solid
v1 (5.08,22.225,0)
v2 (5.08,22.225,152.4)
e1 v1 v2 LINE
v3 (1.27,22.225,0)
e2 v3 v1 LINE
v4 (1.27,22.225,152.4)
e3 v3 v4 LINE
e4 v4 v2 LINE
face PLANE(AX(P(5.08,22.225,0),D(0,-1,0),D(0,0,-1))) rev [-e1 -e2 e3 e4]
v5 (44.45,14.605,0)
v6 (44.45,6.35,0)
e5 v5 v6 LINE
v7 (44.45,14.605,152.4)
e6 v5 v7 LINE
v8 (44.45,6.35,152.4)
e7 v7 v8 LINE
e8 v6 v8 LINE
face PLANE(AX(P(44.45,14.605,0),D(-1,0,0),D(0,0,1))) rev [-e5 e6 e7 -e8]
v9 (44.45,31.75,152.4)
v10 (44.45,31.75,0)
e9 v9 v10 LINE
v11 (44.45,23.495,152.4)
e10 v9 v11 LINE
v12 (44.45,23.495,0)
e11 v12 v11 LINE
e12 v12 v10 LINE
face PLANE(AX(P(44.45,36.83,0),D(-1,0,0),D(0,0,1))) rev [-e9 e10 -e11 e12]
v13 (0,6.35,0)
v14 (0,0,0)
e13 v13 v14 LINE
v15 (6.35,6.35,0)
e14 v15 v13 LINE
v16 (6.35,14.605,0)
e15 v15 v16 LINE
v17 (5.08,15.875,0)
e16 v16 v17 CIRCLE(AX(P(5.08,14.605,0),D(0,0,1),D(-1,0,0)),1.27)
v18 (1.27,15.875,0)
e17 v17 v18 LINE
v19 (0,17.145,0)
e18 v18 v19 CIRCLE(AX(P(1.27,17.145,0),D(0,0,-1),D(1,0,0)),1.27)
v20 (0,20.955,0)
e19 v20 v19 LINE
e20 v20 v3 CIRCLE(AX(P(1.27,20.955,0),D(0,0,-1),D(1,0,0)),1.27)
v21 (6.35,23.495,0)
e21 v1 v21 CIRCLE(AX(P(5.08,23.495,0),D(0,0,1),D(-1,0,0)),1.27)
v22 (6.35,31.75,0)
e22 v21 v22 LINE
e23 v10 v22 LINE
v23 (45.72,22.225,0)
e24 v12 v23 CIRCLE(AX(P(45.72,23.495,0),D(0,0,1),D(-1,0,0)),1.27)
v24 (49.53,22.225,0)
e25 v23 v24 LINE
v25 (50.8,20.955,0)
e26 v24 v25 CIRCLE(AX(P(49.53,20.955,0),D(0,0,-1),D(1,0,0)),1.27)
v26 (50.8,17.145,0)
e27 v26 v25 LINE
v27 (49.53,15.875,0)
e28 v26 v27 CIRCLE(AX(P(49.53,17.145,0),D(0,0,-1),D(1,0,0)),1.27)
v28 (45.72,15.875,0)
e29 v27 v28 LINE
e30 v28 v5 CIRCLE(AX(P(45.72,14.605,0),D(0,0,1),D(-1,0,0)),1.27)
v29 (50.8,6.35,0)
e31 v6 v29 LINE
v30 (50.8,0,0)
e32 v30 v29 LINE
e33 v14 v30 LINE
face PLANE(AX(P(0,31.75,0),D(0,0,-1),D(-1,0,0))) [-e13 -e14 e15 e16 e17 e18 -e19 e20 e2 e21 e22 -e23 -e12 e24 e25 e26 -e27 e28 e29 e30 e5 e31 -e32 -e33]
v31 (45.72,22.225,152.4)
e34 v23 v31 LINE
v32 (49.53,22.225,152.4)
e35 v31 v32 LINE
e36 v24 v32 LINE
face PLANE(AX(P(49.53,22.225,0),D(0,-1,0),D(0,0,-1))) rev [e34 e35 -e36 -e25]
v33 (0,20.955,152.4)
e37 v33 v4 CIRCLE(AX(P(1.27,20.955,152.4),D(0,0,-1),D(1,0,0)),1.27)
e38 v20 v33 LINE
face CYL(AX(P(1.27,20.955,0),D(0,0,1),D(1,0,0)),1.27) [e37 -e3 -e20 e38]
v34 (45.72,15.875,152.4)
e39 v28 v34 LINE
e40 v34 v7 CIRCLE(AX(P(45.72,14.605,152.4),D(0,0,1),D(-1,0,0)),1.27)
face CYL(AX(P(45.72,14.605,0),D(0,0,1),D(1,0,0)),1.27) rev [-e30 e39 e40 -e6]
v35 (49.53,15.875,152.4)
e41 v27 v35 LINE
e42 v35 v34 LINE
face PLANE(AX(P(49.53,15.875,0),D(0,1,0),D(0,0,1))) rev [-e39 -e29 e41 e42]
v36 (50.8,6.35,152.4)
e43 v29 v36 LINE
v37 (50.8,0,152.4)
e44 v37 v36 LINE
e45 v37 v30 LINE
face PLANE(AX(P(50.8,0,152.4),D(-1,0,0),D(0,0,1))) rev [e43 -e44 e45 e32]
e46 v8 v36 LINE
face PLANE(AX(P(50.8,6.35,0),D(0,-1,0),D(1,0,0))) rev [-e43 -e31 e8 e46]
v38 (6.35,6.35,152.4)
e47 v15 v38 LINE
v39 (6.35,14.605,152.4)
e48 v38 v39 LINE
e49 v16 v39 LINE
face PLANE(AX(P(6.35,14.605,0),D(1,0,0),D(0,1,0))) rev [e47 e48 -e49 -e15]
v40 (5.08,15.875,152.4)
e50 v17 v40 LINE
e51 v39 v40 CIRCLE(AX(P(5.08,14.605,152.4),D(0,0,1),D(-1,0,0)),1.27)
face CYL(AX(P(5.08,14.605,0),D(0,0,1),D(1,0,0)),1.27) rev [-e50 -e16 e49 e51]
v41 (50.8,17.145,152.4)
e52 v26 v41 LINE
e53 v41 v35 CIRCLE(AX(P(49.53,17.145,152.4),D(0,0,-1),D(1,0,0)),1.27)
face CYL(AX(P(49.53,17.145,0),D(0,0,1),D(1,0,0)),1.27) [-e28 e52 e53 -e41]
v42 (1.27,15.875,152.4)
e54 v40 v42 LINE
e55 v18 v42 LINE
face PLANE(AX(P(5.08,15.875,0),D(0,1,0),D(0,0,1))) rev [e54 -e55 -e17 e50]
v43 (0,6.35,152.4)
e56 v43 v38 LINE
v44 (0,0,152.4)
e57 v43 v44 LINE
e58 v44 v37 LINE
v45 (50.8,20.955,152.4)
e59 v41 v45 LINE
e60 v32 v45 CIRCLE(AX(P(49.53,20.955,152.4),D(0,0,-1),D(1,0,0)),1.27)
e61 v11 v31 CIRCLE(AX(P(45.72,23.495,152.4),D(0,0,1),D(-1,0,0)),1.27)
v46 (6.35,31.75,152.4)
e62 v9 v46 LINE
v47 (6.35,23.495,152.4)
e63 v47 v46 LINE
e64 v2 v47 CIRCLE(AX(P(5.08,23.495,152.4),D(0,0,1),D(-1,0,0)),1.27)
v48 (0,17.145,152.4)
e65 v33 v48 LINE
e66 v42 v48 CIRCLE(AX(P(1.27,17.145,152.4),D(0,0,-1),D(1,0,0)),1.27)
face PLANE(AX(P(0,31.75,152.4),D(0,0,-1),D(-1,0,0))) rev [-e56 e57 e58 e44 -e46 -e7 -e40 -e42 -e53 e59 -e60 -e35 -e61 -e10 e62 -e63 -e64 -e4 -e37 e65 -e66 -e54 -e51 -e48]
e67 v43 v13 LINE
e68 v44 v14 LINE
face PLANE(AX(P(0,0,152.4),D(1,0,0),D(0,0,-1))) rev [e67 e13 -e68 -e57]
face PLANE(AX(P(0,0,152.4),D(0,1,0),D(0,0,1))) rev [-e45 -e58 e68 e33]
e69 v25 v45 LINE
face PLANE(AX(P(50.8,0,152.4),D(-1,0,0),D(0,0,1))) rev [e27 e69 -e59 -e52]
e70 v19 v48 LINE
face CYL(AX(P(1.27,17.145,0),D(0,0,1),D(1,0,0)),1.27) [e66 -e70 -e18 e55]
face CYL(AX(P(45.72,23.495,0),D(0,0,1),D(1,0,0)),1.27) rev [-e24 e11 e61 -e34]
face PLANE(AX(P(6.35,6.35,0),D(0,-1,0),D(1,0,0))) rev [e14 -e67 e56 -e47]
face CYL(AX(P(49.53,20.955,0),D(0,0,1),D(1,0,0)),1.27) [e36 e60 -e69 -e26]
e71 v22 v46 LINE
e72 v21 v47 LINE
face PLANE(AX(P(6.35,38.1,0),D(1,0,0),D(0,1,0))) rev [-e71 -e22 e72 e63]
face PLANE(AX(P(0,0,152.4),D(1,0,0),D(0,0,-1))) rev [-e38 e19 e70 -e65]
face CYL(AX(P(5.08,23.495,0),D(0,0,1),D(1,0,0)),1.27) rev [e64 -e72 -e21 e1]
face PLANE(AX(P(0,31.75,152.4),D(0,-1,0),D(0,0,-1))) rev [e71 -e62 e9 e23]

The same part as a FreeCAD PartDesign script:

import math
import FreeCAD as App
import Part
import Sketcher

V = App.Vector
Q = App.Units.Quantity

doc = App.newDocument("Part")
body = doc.addObject("PartDesign::Body", "Body")

# Sketch on XY plane
sketch1 = body.newObject("Sketcher::SketchObject", "Sketch")
sketch1.AttachmentSupport = (doc.getObject("XY_Plane"), [""])
sketch1.MapMode = "FlatFace"
sketch1.addGeometry(Part.LineSegment(V(0, 31.75, 0), V(0, 0, 0)), False)
sketch1.addGeometry(Part.LineSegment(V(0, 0, 0), V(50.8, 0, 0)), False)
sketch1.addGeometry(Part.LineSegment(V(50.8, 0, 0), V(50.8, 31.75, 0)), False)
sketch1.addGeometry(Part.LineSegment(V(50.8, 31.75, 0), V(0, 31.75, 0)), False)
sketch1.addConstraint(Sketcher.Constraint("Coincident", 0, 2, 1, 1))
sketch1.addConstraint(Sketcher.Constraint("Coincident", 1, 2, 2, 1))
sketch1.addConstraint(Sketcher.Constraint("Coincident", 2, 2, 3, 1))
sketch1.addConstraint(Sketcher.Constraint("Coincident", 3, 2, 0, 1))
sketch1.addConstraint(Sketcher.Constraint("Vertical", 0))
sketch1.addConstraint(Sketcher.Constraint("Horizontal", 1))
sketch1.addConstraint(Sketcher.Constraint("Vertical", 2))
sketch1.addConstraint(Sketcher.Constraint("Horizontal", 3))
sketch1.addConstraint(Sketcher.Constraint("Coincident", 0, 2, -1, 1))
sketch1.addConstraint(Sketcher.Constraint("DistanceX", 1, 1, 1, 2, Q("2 in")))
sketch1.addConstraint(Sketcher.Constraint("DistanceY", 0, 2, 0, 1, Q("1.25 in")))
pad1 = body.newObject("PartDesign::Pad", "Pad")
pad1.Profile = sketch1
pad1.Length = Q("6 in")

# Sketch on XY plane
sketch2 = body.newObject("Sketcher::SketchObject", "Sketch001")
sketch2.AttachmentSupport = (doc.getObject("XY_Plane"), [""])
sketch2.MapMode = "FlatFace"
sketch2.AttachmentOffset = App.Placement(V(0, 0, 6 * 25.4), App.Rotation())
sketch2.addGeometry(Part.LineSegment(V(44.45, 14.605, 0), V(44.45, 6.35, 0)), False)
sketch2.addGeometry(Part.LineSegment(V(44.45, 6.35, 0), V(54.61, 6.35, 0)), False)
sketch2.addGeometry(Part.LineSegment(V(54.61, 6.35, 0), V(54.61, 36.83, 0)), False)
sketch2.addGeometry(Part.LineSegment(V(54.61, 36.83, 0), V(44.45, 36.83, 0)), False)
sketch2.addGeometry(Part.LineSegment(V(44.45, 36.83, 0), V(44.45, 23.495, 0)), False)
sketch2.addGeometry(Part.ArcOfCircle(Part.Circle(V(45.72, 23.495, 0), V(0, 0, 1), 1.27), math.radians(180), math.radians(270)), False)
sketch2.addGeometry(Part.LineSegment(V(45.72, 22.225, 0), V(49.53, 22.225, 0)), False)
sketch2.addGeometry(Part.ArcOfCircle(Part.Circle(V(49.53, 20.955, 0), V(0, 0, 1), 1.27), math.radians(0), math.radians(90)), False)
sketch2.addGeometry(Part.LineSegment(V(50.8, 20.955, 0), V(50.8, 17.145, 0)), False)
sketch2.addGeometry(Part.ArcOfCircle(Part.Circle(V(49.53, 17.145, 0), V(0, 0, 1), 1.27), math.radians(-90), math.radians(0)), False)
sketch2.addGeometry(Part.LineSegment(V(49.53, 15.875, 0), V(45.72, 15.875, 0)), False)
sketch2.addGeometry(Part.ArcOfCircle(Part.Circle(V(45.72, 14.605, 0), V(0, 0, 1), 1.27), math.radians(90), math.radians(180)), False)
sketch2.addGeometry(Part.LineSegment(V(6.35, 23.495, 0), V(6.35, 38.1, 0)), False)
sketch2.addGeometry(Part.LineSegment(V(6.35, 38.1, 0), V(-3.81, 38.1, 0)), False)
sketch2.addGeometry(Part.LineSegment(V(-3.81, 38.1, 0), V(-3.81, 6.35, 0)), False)
sketch2.addGeometry(Part.LineSegment(V(-3.81, 6.35, 0), V(6.35, 6.35, 0)), False)
sketch2.addGeometry(Part.LineSegment(V(6.35, 6.35, 0), V(6.35, 14.605, 0)), False)
sketch2.addGeometry(Part.ArcOfCircle(Part.Circle(V(5.08, 14.605, 0), V(0, 0, 1), 1.27), math.radians(0), math.radians(90)), False)
sketch2.addGeometry(Part.LineSegment(V(5.08, 15.875, 0), V(1.27, 15.875, 0)), False)
sketch2.addGeometry(Part.ArcOfCircle(Part.Circle(V(1.27, 17.145, 0), V(0, 0, 1), 1.27), math.radians(180), math.radians(270)), False)
sketch2.addGeometry(Part.LineSegment(V(0, 17.145, 0), V(0, 20.955, 0)), False)
sketch2.addGeometry(Part.ArcOfCircle(Part.Circle(V(1.27, 20.955, 0), V(0, 0, 1), 1.27), math.radians(90), math.radians(180)), False)
sketch2.addGeometry(Part.LineSegment(V(1.27, 22.225, 0), V(5.08, 22.225, 0)), False)
sketch2.addGeometry(Part.ArcOfCircle(Part.Circle(V(5.08, 23.495, 0), V(0, 0, 1), 1.27), math.radians(-90), math.radians(0)), False)
sketch2.addConstraint(Sketcher.Constraint("Coincident", 0, 2, 1, 1))
sketch2.addConstraint(Sketcher.Constraint("Coincident", 1, 2, 2, 1))
sketch2.addConstraint(Sketcher.Constraint("Coincident", 2, 2, 3, 1))
sketch2.addConstraint(Sketcher.Constraint("Coincident", 3, 2, 4, 1))
sketch2.addConstraint(Sketcher.Constraint("Tangent", 4, 2, 5, 1))
sketch2.addConstraint(Sketcher.Constraint("Tangent", 5, 2, 6, 1))
sketch2.addConstraint(Sketcher.Constraint("Tangent", 6, 2, 7, 2))
sketch2.addConstraint(Sketcher.Constraint("Tangent", 7, 1, 8, 1))
sketch2.addConstraint(Sketcher.Constraint("Tangent", 8, 2, 9, 2))
sketch2.addConstraint(Sketcher.Constraint("Tangent", 9, 1, 10, 1))
sketch2.addConstraint(Sketcher.Constraint("Tangent", 10, 2, 11, 1))
sketch2.addConstraint(Sketcher.Constraint("Tangent", 11, 2, 0, 1))
sketch2.addConstraint(Sketcher.Constraint("Coincident", 12, 2, 13, 1))
sketch2.addConstraint(Sketcher.Constraint("Coincident", 13, 2, 14, 1))
sketch2.addConstraint(Sketcher.Constraint("Coincident", 14, 2, 15, 1))
sketch2.addConstraint(Sketcher.Constraint("Coincident", 15, 2, 16, 1))
sketch2.addConstraint(Sketcher.Constraint("Tangent", 16, 2, 17, 1))
sketch2.addConstraint(Sketcher.Constraint("Tangent", 17, 2, 18, 1))
sketch2.addConstraint(Sketcher.Constraint("Tangent", 18, 2, 19, 2))
sketch2.addConstraint(Sketcher.Constraint("Tangent", 19, 1, 20, 1))
sketch2.addConstraint(Sketcher.Constraint("Tangent", 20, 2, 21, 2))
sketch2.addConstraint(Sketcher.Constraint("Tangent", 21, 1, 22, 1))
sketch2.addConstraint(Sketcher.Constraint("Tangent", 22, 2, 23, 1))
sketch2.addConstraint(Sketcher.Constraint("Tangent", 23, 2, 12, 1))
sketch2.addConstraint(Sketcher.Constraint("Vertical", 0))
sketch2.addConstraint(Sketcher.Constraint("Horizontal", 1))
sketch2.addConstraint(Sketcher.Constraint("Vertical", 2))
sketch2.addConstraint(Sketcher.Constraint("Horizontal", 3))
sketch2.addConstraint(Sketcher.Constraint("Vertical", 4))
sketch2.addConstraint(Sketcher.Constraint("Horizontal", 6))
sketch2.addConstraint(Sketcher.Constraint("Vertical", 8))
sketch2.addConstraint(Sketcher.Constraint("Horizontal", 10))
sketch2.addConstraint(Sketcher.Constraint("Vertical", 12))
sketch2.addConstraint(Sketcher.Constraint("Horizontal", 13))
sketch2.addConstraint(Sketcher.Constraint("Vertical", 14))
sketch2.addConstraint(Sketcher.Constraint("Horizontal", 15))
sketch2.addConstraint(Sketcher.Constraint("Vertical", 16))
sketch2.addConstraint(Sketcher.Constraint("Horizontal", 18))
sketch2.addConstraint(Sketcher.Constraint("Vertical", 20))
sketch2.addConstraint(Sketcher.Constraint("Horizontal", 22))
sketch2.addConstraint(Sketcher.Constraint("Equal", 5, 7))
sketch2.addConstraint(Sketcher.Constraint("Equal", 7, 9))
sketch2.addConstraint(Sketcher.Constraint("Equal", 9, 11))
sketch2.addConstraint(Sketcher.Constraint("Equal", 11, 17))
sketch2.addConstraint(Sketcher.Constraint("Equal", 17, 19))
sketch2.addConstraint(Sketcher.Constraint("Equal", 19, 21))
sketch2.addConstraint(Sketcher.Constraint("Equal", 21, 23))
sketch2.addConstraint(Sketcher.Constraint("PointOnObject", 19, 1, -2))
sketch2.addConstraint(Sketcher.Constraint("Horizontal", 11, 3, 17, 3))
sketch2.addConstraint(Sketcher.Constraint("Horizontal", 7, 3, 21, 3))
sketch2.addConstraint(Sketcher.Constraint("Horizontal", 1, 2, 14, 2))
sketch2.addConstraint(Sketcher.Constraint("Vertical", 5, 3, 11, 3))
sketch2.addConstraint(Sketcher.Constraint("Vertical", 17, 3, 23, 3))
sketch2.addConstraint(Sketcher.Constraint("Equal", 3, 13))
sketch2.addConstraint(Sketcher.Constraint("Equal", 10, 18))
sketch2.addConstraint(Sketcher.Constraint("Equal", 22, 8))
sketch2.addConstraint(Sketcher.Constraint("Radius", 5, Q("0.05 in")))
sketch2.addConstraint(Sketcher.Constraint("DistanceX", 1, 1, 1, 2, Q("0.4 in")))
sketch2.addConstraint(Sketcher.Constraint("DistanceY", 2, 1, 2, 2, Q("1.2 in")))
sketch2.addConstraint(Sketcher.Constraint("DistanceX", -1, 1, 7, 1, Q("2 in")))
sketch2.addConstraint(Sketcher.Constraint("DistanceX", 6, 1, 6, 2, Q("0.15 in")))
sketch2.addConstraint(Sketcher.Constraint("DistanceY", 14, 2, 14, 1, Q("1.25 in")))
sketch2.addConstraint(Sketcher.Constraint("DistanceY", -1, 1, 12, 2, Q("1.5 in")))
sketch2.addConstraint(Sketcher.Constraint("DistanceY", 0, 2, 0, 1, Q("0.325 in")))
pocket1 = body.newObject("PartDesign::Pocket", "Pocket")
pocket1.Profile = sketch2
pocket1.Length = Q("6 in")

doc.recompute()
